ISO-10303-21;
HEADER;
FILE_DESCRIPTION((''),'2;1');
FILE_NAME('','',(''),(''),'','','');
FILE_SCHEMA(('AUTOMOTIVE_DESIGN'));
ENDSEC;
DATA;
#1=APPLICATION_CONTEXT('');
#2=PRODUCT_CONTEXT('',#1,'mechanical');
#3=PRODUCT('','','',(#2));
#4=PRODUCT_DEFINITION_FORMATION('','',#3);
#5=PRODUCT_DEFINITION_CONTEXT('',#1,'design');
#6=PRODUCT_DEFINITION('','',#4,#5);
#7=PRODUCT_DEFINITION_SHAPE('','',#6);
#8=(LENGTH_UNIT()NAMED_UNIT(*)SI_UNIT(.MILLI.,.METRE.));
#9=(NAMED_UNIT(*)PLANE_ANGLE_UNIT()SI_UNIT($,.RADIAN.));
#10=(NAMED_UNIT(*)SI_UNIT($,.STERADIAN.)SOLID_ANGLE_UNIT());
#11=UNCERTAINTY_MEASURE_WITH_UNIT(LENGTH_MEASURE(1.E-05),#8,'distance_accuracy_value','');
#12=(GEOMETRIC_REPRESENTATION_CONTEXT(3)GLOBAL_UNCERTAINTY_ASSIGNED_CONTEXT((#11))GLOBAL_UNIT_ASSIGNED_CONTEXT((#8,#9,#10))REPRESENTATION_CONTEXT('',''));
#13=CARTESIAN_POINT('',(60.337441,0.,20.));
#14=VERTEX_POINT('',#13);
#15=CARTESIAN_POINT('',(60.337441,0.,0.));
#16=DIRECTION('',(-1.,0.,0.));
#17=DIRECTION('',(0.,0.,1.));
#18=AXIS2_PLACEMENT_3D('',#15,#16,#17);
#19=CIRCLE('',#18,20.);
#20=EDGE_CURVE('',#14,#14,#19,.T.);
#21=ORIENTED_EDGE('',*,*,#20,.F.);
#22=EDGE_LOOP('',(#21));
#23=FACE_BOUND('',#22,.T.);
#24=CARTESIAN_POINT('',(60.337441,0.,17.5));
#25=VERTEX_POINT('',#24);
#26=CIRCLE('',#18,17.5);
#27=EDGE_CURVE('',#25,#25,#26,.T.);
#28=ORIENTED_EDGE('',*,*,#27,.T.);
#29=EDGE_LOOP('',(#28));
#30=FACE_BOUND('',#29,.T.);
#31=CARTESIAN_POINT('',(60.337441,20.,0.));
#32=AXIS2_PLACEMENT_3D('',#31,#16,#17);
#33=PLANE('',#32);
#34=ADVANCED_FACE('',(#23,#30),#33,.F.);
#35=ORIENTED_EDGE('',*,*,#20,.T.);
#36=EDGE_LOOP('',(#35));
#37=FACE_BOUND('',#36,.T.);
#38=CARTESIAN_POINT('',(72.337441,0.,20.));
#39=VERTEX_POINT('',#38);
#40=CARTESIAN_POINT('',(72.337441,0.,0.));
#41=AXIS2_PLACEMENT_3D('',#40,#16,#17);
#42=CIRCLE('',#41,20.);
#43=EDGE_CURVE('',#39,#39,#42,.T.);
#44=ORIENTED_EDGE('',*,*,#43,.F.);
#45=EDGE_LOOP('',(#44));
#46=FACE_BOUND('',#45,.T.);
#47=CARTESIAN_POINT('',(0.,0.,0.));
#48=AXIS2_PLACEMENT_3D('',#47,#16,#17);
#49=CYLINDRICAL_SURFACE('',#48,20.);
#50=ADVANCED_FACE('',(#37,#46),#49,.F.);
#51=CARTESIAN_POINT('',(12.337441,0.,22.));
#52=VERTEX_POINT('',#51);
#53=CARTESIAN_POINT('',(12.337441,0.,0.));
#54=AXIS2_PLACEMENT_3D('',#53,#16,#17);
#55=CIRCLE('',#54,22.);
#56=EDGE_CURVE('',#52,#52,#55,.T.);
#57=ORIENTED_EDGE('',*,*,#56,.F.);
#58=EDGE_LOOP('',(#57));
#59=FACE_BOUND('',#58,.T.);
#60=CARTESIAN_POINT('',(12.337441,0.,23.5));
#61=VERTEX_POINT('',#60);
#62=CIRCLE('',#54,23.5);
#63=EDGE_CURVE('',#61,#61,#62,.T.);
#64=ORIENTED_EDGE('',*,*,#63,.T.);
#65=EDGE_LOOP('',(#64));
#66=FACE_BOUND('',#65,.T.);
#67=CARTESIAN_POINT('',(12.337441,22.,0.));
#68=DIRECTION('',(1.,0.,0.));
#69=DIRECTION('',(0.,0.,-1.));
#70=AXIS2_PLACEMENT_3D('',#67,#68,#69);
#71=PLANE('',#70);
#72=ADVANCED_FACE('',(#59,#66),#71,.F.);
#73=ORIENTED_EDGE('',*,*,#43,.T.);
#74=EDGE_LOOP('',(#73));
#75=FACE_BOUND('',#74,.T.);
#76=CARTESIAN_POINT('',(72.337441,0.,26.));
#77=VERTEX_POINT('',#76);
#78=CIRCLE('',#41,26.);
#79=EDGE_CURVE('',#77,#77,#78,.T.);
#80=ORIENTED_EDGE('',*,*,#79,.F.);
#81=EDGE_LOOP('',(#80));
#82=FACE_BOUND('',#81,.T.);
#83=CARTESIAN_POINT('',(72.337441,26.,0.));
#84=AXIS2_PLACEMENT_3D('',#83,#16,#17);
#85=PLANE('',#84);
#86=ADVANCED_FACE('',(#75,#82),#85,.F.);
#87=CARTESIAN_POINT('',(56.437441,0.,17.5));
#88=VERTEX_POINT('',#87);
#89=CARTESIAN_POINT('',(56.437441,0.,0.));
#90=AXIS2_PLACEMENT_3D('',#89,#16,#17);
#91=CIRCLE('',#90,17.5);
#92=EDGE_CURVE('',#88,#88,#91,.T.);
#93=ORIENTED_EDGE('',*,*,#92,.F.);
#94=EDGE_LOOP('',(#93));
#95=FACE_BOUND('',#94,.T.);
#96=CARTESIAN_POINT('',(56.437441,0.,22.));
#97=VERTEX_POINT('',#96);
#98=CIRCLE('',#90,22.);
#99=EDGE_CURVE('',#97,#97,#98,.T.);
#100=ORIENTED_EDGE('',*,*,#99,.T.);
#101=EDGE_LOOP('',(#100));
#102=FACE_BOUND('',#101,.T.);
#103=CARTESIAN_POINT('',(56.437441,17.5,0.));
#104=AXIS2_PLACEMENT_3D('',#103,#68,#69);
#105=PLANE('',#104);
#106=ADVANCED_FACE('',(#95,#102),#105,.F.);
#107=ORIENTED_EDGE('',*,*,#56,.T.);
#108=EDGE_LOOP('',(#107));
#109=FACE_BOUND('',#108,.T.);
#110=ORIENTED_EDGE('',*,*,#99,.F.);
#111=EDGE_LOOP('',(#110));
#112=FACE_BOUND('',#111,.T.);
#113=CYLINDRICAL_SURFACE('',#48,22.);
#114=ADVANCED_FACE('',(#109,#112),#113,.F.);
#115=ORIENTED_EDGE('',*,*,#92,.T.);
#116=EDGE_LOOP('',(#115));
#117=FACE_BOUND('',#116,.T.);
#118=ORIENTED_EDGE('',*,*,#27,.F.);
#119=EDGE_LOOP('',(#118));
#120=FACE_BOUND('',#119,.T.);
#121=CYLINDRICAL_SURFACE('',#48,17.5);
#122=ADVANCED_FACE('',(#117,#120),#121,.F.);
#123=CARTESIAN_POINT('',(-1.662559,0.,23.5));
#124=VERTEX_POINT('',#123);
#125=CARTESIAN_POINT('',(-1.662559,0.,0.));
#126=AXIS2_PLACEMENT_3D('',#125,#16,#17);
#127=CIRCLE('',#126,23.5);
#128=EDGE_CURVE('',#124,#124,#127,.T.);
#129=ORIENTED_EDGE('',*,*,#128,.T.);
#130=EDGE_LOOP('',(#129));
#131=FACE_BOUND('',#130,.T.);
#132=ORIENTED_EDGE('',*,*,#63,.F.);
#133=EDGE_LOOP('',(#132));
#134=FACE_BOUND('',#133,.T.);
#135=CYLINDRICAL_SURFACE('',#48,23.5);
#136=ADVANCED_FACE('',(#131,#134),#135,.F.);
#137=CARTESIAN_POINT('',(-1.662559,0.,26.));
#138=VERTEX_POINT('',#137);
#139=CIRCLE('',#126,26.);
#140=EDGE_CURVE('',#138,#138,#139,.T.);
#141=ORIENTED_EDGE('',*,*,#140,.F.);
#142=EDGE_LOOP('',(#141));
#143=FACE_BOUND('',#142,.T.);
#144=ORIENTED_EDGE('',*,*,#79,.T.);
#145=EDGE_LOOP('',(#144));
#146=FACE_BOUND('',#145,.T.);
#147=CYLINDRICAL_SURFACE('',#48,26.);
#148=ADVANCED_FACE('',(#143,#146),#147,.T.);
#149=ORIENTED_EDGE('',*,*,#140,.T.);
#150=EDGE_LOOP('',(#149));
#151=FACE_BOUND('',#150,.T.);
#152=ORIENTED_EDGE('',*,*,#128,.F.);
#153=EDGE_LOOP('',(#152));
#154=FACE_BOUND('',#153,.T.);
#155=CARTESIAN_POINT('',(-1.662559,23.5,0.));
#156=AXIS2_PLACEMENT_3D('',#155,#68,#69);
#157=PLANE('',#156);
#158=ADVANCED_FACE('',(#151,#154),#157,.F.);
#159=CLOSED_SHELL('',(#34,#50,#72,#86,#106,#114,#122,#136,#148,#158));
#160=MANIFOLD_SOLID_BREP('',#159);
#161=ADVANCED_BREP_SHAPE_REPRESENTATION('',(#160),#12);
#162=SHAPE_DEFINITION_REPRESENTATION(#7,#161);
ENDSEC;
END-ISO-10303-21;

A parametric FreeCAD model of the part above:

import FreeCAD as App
import Part
import Sketcher
from FreeCAD import Vector
Q = App.Units.Quantity


def add_polygon(sketch, points):
    """Adds a closed chain of lines whose ends are joined by coincident constraints."""
    first, n = sketch.GeometryCount, len(points)
    for a, b in zip(points, points[1:] + points[:1]):
        sketch.addGeometry(Part.LineSegment(App.Vector(*a, 0), App.Vector(*b, 0)), False)
    for i in range(n):
        sketch.addConstraint(Sketcher.Constraint("Coincident", first + i, 2, first + (i + 1) % n, 1))

doc = App.newDocument("Part")
body = doc.addObject("PartDesign::Body", "Body")

# Sketch on XY plane
sketch1 = body.newObject("Sketcher::SketchObject", "Sketch")
sketch1.AttachmentSupport = (doc.getObject("XY_Plane"), [""])
sketch1.MapMode = "FlatFace"
add_polygon(sketch1, [(12.337441, 23.5), (12.337441, 22), (56.437441, 22), (56.437441, 17.5), (60.337441, 17.5), (60.337441, 20), (72.337441, 20), (72.337441, 26), (-1.662559, 26), (-1.662559, 23.5)])  # lines 0-9
sketch1.addConstraint(Sketcher.Constraint("Vertical", 0))
sketch1.addConstraint(Sketcher.Constraint("Horizontal", 1))
sketch1.addConstraint(Sketcher.Constraint("Vertical", 2))
sketch1.addConstraint(Sketcher.Constraint("Horizontal", 3))
sketch1.addConstraint(Sketcher.Constraint("Vertical", 4))
sketch1.addConstraint(Sketcher.Constraint("Horizontal", 5))
sketch1.addConstraint(Sketcher.Constraint("Vertical", 6))
sketch1.addConstraint(Sketcher.Constraint("Horizontal", 7))
sketch1.addConstraint(Sketcher.Constraint("Vertical", 8))
sketch1.addConstraint(Sketcher.Constraint("Horizontal", 9))
sketch1.addConstraint(Sketcher.Constraint("Equal", 4, 8))
sketch1.addConstraint(Sketcher.Constraint("DistanceX", 5, 1, 5, 2, Q("12 mm")))
sketch1.addConstraint(Sketcher.Constraint("DistanceX", 7, 2, 7, 1, Q("74 mm")))
sketch1.addConstraint(Sketcher.Constraint("DistanceX", 9, 1, 9, 2, Q("14 mm")))
sketch1.addConstraint(Sketcher.Constraint("DistanceY", 6, 1, 6, 2, Q("6 mm")))
sketch1.addConstraint(Sketcher.Constraint("DistanceX", 1, 1, 1, 2, Q("44.1 mm")))
sketch1.addConstraint(Sketcher.Constraint("DistanceY", 0, 2, 0, 1, Q("1.5 mm")))
sketch1.addConstraint(Sketcher.Constraint("DistanceY", 4, 1, 4, 2, Q("2.5 mm")))
sketch1.addConstraint(Sketcher.Constraint("DistanceY", -1, 1, 0, 2, Q("22 mm")))
sketch1.addConstraint(Sketcher.Constraint("DistanceX", -1, 1, 0, 2, Q("12.337441 mm")))
revolution = body.newObject("PartDesign::Revolution", "Revolution")
revolution.Profile = sketch1
revolution.ReferenceAxis = (sketch1, ["H_Axis"])
revolution.Angle = 360

doc.recompute()
